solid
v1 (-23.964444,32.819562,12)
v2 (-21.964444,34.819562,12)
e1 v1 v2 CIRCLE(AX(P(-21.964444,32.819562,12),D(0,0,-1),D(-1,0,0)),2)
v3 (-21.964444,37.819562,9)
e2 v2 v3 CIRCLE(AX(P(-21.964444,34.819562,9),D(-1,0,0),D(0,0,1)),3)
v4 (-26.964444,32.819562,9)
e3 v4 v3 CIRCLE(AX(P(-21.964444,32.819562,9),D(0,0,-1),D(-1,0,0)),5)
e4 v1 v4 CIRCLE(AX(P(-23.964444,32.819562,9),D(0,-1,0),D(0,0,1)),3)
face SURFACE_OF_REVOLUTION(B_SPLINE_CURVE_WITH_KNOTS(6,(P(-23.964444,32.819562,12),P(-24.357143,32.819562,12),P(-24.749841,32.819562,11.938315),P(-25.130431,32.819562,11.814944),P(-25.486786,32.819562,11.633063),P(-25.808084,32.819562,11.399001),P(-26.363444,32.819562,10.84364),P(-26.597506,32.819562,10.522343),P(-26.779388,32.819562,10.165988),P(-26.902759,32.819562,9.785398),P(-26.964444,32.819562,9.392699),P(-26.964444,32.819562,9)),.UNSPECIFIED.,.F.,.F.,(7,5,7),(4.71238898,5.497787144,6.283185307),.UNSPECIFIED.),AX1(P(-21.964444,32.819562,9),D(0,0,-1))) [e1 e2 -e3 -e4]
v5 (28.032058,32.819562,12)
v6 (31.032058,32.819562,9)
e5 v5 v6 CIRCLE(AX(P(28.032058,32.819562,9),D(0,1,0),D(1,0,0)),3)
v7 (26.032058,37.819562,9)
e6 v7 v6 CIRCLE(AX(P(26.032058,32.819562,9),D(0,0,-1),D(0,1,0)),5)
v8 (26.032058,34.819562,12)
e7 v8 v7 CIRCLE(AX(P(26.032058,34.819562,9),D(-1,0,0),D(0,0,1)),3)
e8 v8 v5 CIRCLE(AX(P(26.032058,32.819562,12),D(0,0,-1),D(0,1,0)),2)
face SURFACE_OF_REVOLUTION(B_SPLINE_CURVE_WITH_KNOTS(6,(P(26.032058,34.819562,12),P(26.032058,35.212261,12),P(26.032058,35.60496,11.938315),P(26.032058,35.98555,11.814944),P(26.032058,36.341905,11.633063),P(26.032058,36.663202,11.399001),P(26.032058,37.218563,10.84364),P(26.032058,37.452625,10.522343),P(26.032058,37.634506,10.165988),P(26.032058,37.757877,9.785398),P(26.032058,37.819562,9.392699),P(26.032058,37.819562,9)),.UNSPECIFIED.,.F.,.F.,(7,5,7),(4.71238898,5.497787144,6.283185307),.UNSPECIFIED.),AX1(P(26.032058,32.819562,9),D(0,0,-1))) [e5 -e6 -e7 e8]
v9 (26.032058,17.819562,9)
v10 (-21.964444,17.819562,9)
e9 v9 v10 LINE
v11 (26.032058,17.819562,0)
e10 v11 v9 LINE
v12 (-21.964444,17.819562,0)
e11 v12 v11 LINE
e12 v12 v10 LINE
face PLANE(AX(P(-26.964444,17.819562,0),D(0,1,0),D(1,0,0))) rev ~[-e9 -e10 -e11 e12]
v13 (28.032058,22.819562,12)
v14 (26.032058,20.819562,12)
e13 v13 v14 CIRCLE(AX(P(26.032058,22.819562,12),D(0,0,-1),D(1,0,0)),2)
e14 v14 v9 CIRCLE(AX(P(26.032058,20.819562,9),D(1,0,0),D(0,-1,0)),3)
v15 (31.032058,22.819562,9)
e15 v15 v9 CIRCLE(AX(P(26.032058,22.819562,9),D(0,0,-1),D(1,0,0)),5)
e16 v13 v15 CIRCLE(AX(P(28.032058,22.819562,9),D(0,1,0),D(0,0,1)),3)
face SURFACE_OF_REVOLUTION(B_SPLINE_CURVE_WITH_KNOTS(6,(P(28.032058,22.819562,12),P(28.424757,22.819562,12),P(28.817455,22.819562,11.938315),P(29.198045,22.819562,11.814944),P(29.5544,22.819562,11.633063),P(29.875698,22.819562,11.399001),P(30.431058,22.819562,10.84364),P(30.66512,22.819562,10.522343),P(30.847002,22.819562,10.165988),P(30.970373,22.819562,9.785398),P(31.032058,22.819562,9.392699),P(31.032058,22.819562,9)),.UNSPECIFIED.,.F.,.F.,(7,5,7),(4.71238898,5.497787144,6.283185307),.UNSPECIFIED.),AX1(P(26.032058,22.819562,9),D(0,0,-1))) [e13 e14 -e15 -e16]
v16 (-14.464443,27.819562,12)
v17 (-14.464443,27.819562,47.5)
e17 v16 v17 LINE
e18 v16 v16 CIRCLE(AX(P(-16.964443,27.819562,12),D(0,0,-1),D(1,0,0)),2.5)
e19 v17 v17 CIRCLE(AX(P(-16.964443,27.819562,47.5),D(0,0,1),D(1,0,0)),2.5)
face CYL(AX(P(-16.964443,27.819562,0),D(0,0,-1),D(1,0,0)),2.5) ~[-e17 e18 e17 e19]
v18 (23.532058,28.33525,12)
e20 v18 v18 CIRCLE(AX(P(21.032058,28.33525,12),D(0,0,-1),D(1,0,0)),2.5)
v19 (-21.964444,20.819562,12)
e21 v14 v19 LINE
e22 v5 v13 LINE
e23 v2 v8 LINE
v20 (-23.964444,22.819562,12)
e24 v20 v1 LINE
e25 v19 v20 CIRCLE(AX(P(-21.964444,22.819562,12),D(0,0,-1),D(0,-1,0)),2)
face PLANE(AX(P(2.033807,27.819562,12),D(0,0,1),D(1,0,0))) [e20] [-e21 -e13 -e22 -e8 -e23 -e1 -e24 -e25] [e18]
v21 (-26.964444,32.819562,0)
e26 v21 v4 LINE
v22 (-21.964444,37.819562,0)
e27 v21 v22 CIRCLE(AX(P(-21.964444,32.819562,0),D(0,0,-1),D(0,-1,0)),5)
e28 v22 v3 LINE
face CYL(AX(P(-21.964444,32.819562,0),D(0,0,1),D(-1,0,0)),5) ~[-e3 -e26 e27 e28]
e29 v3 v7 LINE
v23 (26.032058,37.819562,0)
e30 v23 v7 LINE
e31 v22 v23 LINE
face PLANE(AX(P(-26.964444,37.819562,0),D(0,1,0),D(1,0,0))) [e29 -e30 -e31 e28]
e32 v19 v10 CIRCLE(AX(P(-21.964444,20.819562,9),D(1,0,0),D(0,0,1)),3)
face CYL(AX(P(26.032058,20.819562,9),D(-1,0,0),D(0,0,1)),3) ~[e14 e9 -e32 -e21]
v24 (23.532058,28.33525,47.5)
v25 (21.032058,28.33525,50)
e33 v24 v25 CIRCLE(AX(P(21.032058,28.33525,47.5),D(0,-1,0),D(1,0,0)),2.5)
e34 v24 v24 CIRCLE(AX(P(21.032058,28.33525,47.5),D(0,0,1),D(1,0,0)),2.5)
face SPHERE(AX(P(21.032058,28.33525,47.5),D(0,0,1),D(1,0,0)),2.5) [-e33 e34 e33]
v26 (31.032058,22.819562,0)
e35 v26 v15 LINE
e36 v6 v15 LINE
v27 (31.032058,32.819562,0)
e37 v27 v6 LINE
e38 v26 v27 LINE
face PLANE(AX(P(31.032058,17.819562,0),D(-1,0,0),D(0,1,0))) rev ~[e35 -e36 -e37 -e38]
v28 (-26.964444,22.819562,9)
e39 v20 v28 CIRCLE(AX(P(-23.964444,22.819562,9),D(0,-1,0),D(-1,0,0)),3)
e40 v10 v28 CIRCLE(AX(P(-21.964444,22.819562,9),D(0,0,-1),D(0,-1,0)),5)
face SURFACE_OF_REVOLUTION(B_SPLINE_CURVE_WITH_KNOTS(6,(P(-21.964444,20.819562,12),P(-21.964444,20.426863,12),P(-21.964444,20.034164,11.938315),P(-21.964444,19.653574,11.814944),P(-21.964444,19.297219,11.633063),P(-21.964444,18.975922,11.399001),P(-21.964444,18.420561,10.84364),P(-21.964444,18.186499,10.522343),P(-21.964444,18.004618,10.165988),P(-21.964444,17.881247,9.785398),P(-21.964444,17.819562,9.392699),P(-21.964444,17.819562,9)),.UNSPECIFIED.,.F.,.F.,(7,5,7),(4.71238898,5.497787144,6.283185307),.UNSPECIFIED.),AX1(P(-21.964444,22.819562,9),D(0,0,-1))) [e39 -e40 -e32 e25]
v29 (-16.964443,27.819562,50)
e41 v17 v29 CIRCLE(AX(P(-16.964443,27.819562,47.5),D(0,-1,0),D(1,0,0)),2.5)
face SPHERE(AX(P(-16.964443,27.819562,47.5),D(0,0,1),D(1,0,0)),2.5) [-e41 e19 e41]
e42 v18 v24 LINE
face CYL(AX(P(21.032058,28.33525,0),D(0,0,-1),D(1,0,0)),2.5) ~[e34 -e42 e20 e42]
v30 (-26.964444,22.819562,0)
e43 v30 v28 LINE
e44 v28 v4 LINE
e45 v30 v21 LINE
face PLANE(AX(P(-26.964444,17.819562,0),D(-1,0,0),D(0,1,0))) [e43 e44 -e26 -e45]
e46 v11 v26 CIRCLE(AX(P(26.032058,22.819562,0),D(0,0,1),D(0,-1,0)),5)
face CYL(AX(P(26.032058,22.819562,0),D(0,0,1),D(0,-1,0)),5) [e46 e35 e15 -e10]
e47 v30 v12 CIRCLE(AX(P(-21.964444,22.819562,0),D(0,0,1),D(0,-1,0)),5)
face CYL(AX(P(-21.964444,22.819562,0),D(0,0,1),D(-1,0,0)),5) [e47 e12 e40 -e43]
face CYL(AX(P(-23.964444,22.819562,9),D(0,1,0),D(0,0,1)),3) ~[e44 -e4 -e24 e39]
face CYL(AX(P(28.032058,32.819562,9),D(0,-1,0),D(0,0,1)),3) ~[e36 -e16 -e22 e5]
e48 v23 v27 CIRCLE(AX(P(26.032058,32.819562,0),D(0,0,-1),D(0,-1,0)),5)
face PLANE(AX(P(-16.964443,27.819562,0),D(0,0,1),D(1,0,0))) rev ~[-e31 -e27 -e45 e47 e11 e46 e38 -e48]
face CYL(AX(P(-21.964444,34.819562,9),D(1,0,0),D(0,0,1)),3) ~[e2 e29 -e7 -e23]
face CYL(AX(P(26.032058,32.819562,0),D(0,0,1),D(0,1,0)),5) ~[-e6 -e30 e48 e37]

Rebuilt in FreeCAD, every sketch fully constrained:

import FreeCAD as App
import Part
import Sketcher

V = App.Vector
Q = App.Units.Quantity


def edges_at(feature, points):
    """Names of the edges that pass closest to the given points."""
    edges = feature.Shape.Edges
    near = lambda p: min(range(len(edges)), key=lambda i: edges[i].distToShape(Part.Vertex(*p))[0])
    return sorted({f"Edge{near(p) + 1}" for p in points})

doc = App.newDocument("Part")
params = doc.addObject("Spreadsheet::Sheet", "Params")
for row, (alias, value) in enumerate([
    ("sketch1_height", "20 mm"),
    ("pad1_length", "12 mm"),
    ("sketch2_diameter", "5 mm"),
    ("pad2_length", "50 mm"),
    ("fillet_radius", "2.5 mm"),
    ("fillet2_radius", "5 mm"),
    ("fillet3_radius", "3 mm"),
], start=1):
    params.set(f"A{row}", alias)
    params.set(f"B{row}", "=" + value)
    params.setAlias(f"B{row}", alias)

body = doc.addObject("PartDesign::Body", "Body")

# Sketch on XY plane
sketch1 = body.newObject("Sketcher::SketchObject", "Sketch")
sketch1.AttachmentSupport = (doc.getObject("XY_Plane"), [""])
sketch1.MapMode = "FlatFace"
sketch1.addGeometry([
    Part.LineSegment(V(-27, 38, 0), V(-27, 18, 0)),
    Part.LineSegment(V(-27, 18, 0), V(31, 18, 0)),
    Part.LineSegment(V(31, 18, 0), V(31, 38, 0)),
    Part.LineSegment(V(31, 38, 0), V(-27, 38, 0)),
], False)
sketch1.addConstraint([
    Sketcher.Constraint("Coincident", 0, 2, 1, 1),
    Sketcher.Constraint("Coincident", 1, 2, 2, 1),
    Sketcher.Constraint("Coincident", 2, 2, 3, 1),
    Sketcher.Constraint("Coincident", 3, 2, 0, 1),
    Sketcher.Constraint("Vertical", 0),
    Sketcher.Constraint("Horizontal", 1),
    Sketcher.Constraint("Vertical", 2),
    Sketcher.Constraint("Horizontal", 3),
    Sketcher.Constraint("DistanceY", 0, 2, 0, 1, Q("20 mm")),
    Sketcher.Constraint("DistanceX", 1, 1, 1, 2, Q("57.996501 mm")),
    Sketcher.Constraint("DistanceY", -1, 1, 2, 2, Q("37.819562 mm")),
    Sketcher.Constraint("DistanceX", 0, 2, -1, 1, Q("26.964444 mm")),
])
sketch1.setExpression("Constraints[8]", "Params.sketch1_height")
pad1 = body.newObject("PartDesign::Pad", "Pad")
pad1.Profile = sketch1
pad1.setExpression("Length", "Params.pad1_length")

# Sketch on XY plane
sketch2 = body.newObject("Sketcher::SketchObject", "Sketch001")
sketch2.AttachmentSupport = (doc.getObject("XY_Plane"), [""])
sketch2.MapMode = "FlatFace"
sketch2.addGeometry([
    Part.Circle(V(-17, 27.8, 0), V(0, 0, 1), 2.5),
    Part.Circle(V(21, 28.3, 0), V(0, 0, 1), 2.5),
], False)
sketch2.addConstraint([
    Sketcher.Constraint("Equal", 0, 1),
    Sketcher.Constraint("Diameter", 0, Q("5 mm")),
    Sketcher.Constraint("DistanceX", 0, 3, 1, 3, Q("37.996501 mm")),
    Sketcher.Constraint("DistanceY", -1, 1, 1, 3, Q("28.33525 mm")),
    Sketcher.Constraint("DistanceX", 0, 3, -1, 1, Q("16.964443 mm")),
    Sketcher.Constraint("DistanceY", -1, 1, 0, 3, Q("27.819562 mm")),
])
sketch2.setExpression("Constraints[1]", "Params.sketch2_diameter")
pad2 = body.newObject("PartDesign::Pad", "Pad001")
pad2.Profile = sketch2
pad2.setExpression("Length", "Params.pad2_length")
doc.recompute()

fillet = body.newObject("PartDesign::Fillet", "Fillet")
fillet.Base = (pad2, edges_at(pad2, [(-19.464, 27.82, 50), (18.532, 28.335, 50)]))
fillet.setExpression("Radius", "Params.fillet_radius")
doc.recompute()

fillet2 = body.newObject("PartDesign::Fillet", "Fillet001")
fillet2.Base = (fillet, edges_at(fillet, [
    (-26.964, 37.82, 6),
    (-26.964, 17.82, 6),
    (31.032, 17.82, 6),
    (31.032, 37.82, 6),
]))
fillet2.setExpression("Radius", "Params.fillet2_radius")
doc.recompute()

fillet3 = body.newObject("PartDesign::Fillet", "Fillet002")
fillet3.Base = (fillet2, edges_at(fillet2, [(2.034, 37.82, 12)]))
fillet3.setExpression("Radius", "Params.fillet3_radius")

doc.recompute()
